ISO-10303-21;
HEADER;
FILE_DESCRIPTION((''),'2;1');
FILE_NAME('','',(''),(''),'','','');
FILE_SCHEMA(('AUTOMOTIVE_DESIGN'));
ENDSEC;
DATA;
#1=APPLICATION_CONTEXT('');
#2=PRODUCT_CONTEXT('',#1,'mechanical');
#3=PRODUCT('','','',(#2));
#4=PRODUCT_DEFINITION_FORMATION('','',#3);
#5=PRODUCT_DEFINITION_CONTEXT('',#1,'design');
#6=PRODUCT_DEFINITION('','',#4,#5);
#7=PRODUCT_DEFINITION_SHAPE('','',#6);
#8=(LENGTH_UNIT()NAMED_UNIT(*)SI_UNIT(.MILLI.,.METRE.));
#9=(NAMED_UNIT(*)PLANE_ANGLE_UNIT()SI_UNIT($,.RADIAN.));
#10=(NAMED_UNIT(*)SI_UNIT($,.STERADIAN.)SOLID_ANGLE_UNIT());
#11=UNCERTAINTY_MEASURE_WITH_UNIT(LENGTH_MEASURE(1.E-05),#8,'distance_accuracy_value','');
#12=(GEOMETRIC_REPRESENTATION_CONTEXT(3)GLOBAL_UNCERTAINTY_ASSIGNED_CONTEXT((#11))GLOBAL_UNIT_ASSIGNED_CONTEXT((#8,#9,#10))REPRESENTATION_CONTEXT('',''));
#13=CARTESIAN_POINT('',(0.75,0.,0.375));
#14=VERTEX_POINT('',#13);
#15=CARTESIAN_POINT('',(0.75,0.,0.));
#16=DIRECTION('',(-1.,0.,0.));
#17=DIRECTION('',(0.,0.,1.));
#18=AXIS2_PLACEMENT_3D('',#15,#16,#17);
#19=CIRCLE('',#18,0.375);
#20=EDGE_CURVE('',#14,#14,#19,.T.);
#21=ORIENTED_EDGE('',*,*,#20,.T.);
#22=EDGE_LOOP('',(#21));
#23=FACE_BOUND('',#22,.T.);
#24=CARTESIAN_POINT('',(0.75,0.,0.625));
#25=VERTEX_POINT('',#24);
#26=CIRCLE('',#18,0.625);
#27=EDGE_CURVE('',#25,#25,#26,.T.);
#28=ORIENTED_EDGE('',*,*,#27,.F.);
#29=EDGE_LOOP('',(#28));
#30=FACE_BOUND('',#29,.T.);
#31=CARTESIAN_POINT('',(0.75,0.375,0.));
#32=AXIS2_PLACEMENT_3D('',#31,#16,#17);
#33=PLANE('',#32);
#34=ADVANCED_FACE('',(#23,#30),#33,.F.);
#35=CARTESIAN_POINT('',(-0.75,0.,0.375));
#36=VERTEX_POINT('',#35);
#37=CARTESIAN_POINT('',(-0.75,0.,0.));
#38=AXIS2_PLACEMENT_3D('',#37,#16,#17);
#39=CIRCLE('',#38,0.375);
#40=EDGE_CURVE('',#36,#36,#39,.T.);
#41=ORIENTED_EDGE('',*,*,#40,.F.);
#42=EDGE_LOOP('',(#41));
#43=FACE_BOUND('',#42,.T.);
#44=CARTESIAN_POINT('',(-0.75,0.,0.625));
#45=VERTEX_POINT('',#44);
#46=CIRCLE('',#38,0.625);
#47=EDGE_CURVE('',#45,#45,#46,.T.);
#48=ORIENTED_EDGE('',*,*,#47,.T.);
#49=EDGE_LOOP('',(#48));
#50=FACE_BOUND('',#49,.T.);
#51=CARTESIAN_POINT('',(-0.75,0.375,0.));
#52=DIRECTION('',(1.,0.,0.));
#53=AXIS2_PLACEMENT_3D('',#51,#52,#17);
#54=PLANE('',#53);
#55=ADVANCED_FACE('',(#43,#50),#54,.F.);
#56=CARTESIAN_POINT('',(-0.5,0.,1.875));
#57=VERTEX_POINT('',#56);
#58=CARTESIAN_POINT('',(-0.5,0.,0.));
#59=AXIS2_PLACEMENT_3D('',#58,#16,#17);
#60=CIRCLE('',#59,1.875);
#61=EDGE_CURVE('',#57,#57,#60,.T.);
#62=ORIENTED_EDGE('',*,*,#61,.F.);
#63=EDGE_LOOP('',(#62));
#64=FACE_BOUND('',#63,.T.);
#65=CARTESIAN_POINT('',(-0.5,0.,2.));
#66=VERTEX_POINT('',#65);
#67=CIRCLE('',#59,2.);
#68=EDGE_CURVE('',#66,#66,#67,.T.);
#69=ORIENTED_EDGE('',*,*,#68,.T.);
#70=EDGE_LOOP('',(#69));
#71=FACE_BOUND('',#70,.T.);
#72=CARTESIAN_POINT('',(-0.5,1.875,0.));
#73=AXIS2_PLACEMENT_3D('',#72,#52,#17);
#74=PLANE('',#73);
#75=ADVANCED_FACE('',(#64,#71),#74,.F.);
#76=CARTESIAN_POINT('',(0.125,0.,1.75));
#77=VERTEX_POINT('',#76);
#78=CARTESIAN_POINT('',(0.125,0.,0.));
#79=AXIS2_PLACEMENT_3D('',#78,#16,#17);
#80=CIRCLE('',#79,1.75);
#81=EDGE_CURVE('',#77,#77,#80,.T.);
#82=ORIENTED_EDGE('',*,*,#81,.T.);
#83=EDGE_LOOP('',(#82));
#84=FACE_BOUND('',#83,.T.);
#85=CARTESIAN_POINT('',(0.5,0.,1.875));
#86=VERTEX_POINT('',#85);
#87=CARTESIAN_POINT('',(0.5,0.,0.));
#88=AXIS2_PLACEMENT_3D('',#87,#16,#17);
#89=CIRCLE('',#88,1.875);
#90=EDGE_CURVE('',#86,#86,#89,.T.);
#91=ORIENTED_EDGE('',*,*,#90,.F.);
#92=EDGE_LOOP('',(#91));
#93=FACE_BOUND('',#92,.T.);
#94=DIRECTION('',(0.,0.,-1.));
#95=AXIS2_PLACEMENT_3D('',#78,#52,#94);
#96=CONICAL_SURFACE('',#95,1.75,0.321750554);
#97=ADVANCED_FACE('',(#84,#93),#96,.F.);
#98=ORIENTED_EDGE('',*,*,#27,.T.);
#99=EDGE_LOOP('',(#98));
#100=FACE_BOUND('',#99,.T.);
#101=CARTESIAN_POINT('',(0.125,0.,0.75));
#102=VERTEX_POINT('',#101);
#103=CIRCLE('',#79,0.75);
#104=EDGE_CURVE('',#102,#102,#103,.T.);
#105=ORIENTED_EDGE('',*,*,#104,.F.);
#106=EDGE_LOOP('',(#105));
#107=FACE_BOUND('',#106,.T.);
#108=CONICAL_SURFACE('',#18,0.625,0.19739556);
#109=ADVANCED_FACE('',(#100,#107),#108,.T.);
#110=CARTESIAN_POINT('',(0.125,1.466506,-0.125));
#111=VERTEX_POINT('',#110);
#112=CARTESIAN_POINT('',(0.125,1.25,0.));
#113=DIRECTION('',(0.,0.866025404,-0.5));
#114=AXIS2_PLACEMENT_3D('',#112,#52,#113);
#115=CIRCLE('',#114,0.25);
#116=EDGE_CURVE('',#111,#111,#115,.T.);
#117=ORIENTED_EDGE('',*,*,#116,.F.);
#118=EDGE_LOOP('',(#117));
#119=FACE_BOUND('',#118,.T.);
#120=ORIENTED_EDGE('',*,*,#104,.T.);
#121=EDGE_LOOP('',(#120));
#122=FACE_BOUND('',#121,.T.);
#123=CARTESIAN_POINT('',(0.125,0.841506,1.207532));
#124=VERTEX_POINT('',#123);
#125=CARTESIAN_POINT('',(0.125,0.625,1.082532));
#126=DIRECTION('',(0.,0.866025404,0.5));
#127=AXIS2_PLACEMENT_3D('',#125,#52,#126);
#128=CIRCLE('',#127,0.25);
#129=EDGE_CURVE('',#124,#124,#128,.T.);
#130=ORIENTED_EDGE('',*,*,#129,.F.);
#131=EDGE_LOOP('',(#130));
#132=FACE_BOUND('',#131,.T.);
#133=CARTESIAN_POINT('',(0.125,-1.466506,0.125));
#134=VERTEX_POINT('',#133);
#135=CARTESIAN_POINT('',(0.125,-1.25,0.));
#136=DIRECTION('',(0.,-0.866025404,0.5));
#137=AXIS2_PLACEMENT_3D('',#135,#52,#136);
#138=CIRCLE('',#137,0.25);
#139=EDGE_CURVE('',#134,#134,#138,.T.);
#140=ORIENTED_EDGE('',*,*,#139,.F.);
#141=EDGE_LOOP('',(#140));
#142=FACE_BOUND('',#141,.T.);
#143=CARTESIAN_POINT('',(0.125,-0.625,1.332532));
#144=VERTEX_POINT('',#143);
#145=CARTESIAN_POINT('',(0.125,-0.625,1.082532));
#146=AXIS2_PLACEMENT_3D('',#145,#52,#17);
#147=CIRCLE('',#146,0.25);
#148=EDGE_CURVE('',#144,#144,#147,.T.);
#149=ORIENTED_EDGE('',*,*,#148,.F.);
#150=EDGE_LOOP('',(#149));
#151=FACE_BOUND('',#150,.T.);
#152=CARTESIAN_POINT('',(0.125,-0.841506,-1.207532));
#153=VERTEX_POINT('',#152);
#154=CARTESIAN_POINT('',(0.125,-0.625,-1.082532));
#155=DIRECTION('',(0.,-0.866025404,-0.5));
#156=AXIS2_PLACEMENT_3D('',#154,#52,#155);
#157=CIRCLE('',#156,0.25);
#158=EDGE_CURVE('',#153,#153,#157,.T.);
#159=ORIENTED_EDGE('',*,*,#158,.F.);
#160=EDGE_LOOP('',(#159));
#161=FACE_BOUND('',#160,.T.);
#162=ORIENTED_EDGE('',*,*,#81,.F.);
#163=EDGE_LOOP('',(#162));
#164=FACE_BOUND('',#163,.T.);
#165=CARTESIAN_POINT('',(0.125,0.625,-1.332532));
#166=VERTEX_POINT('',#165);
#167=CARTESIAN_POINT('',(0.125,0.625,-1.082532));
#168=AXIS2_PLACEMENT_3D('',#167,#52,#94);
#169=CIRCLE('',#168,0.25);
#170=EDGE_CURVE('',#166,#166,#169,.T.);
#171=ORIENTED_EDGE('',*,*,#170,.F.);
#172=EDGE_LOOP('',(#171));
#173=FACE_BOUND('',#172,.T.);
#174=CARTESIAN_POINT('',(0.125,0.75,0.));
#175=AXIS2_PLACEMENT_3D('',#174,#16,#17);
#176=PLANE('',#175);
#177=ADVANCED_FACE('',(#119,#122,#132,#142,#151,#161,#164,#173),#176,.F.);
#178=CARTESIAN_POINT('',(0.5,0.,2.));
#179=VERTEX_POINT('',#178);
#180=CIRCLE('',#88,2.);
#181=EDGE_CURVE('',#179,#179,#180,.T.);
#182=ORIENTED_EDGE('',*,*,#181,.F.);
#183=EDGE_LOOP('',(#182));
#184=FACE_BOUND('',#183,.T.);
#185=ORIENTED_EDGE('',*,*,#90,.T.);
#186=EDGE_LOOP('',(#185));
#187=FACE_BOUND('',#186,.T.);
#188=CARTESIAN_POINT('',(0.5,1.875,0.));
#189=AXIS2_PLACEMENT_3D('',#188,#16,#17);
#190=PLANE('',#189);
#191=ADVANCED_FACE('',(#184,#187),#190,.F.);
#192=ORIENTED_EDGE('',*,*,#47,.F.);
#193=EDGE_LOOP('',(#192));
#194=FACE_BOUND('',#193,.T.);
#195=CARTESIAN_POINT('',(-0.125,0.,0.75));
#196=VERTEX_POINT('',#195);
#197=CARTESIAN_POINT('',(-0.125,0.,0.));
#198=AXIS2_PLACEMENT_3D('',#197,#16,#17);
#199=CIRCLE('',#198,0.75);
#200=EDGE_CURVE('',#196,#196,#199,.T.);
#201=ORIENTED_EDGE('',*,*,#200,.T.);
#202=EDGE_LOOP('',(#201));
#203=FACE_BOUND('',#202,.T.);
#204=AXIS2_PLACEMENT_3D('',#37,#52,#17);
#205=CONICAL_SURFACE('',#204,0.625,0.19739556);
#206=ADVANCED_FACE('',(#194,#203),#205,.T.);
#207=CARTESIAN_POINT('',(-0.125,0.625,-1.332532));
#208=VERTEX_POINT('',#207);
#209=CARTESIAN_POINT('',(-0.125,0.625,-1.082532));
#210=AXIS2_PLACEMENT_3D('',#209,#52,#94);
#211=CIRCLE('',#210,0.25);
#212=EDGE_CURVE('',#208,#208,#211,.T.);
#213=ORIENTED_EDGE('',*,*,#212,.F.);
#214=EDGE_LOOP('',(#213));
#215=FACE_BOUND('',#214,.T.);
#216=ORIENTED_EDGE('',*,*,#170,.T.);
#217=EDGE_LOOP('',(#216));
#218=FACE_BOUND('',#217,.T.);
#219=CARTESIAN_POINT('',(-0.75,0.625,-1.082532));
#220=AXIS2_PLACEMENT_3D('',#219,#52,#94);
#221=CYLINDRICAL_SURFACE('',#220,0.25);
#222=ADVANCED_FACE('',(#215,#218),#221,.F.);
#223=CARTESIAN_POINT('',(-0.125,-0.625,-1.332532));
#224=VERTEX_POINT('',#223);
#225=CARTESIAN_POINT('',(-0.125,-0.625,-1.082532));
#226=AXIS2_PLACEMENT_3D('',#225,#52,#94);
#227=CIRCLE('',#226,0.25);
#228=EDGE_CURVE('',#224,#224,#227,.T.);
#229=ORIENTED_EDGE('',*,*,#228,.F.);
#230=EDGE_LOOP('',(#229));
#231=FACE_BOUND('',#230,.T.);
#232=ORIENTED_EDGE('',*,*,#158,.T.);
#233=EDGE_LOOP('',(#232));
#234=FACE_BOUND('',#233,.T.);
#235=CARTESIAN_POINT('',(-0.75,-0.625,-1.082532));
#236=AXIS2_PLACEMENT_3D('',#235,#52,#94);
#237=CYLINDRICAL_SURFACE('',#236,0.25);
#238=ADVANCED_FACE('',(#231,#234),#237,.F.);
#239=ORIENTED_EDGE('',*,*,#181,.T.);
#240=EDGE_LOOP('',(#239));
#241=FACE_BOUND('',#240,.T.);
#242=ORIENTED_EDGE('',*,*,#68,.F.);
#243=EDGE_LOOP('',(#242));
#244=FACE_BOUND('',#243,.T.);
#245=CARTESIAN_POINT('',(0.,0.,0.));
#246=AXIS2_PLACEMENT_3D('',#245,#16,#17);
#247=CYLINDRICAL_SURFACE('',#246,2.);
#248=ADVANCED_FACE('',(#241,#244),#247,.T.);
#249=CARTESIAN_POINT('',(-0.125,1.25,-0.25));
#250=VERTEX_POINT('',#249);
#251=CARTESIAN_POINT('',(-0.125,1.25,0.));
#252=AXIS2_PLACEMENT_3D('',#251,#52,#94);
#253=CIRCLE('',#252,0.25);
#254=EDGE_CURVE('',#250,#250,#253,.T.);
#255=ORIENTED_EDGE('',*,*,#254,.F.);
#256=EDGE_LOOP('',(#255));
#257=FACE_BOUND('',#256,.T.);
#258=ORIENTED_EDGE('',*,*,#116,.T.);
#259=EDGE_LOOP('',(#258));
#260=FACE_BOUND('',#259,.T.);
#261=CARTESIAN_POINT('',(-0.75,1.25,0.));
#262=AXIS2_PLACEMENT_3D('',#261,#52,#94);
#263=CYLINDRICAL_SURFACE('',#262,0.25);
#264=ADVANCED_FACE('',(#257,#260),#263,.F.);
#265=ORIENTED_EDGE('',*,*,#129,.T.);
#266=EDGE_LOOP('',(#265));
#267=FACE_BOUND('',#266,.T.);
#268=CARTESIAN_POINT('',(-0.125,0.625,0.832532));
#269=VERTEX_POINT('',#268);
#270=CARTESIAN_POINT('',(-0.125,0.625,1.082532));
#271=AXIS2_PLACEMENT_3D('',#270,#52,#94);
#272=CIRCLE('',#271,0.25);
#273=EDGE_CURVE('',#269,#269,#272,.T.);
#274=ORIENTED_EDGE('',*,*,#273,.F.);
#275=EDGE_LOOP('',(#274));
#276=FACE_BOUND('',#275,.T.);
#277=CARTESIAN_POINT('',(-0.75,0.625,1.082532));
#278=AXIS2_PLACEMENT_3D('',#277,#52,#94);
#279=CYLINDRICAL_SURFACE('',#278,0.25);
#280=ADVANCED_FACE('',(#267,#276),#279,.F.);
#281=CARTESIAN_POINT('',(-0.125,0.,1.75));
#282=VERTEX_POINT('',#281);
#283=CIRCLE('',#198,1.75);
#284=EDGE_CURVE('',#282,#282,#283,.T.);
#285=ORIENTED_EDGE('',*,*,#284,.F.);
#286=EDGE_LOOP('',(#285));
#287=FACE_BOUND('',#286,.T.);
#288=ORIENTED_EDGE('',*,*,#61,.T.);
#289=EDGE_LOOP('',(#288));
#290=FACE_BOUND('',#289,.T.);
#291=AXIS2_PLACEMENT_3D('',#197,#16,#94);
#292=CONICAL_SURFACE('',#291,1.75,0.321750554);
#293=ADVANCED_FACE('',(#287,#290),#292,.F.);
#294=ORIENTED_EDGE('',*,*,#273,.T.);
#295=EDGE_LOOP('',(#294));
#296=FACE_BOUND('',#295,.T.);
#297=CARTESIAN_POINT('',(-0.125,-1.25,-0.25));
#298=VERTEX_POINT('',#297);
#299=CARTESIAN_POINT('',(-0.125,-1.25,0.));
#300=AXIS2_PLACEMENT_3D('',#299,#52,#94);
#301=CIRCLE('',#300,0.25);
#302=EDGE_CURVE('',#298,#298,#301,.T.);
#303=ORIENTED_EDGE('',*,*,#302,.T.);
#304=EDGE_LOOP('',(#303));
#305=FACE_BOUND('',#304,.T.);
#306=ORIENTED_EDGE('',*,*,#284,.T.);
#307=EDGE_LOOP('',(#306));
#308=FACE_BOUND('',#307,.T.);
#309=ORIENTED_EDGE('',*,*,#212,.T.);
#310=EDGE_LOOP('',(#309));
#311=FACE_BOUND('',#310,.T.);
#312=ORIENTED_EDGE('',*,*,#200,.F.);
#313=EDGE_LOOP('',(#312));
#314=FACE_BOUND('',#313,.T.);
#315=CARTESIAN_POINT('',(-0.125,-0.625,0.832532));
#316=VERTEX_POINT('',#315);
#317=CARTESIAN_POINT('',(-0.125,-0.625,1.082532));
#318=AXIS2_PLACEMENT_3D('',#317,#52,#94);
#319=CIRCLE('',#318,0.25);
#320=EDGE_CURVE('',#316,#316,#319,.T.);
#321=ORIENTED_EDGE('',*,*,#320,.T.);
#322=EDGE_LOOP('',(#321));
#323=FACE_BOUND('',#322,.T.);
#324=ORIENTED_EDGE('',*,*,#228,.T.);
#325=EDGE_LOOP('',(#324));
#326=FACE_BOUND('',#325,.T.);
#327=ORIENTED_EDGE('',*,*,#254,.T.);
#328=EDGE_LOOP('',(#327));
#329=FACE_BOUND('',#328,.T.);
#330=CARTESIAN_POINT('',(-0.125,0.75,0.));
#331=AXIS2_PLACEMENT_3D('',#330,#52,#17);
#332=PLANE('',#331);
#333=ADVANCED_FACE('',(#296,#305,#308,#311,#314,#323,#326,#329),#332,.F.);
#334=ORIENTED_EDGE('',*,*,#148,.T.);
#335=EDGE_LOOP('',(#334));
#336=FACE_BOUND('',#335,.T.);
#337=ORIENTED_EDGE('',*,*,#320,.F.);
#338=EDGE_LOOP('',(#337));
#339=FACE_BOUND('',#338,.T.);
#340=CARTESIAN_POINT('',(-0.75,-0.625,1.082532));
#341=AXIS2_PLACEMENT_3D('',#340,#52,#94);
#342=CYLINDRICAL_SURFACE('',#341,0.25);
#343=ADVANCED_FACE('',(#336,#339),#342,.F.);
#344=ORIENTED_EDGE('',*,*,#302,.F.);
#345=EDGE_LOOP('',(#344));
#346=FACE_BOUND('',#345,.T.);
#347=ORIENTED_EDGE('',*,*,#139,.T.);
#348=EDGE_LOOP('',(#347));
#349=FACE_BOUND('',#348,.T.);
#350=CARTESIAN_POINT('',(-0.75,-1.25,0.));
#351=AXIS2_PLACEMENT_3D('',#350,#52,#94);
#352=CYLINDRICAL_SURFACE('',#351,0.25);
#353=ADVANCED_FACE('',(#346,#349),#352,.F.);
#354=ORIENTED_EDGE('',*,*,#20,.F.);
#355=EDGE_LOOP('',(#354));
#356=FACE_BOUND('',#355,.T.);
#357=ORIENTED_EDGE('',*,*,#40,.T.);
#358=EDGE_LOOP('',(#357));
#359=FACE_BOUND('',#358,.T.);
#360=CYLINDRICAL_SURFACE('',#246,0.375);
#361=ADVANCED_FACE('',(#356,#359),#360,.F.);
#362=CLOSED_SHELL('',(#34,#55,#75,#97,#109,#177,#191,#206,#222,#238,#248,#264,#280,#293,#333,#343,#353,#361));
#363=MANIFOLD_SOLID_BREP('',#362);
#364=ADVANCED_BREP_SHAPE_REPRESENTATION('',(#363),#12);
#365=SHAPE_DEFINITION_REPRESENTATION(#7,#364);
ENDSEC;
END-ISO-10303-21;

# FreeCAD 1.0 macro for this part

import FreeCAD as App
import Part
import Sketcher
from FreeCAD import Vector


def add_polygon(sketch, points):
    """Adds a closed chain of lines whose ends are joined by coincident constraints."""
    first, n = sketch.GeometryCount, len(points)
    for a, b in zip(points, points[1:] + points[:1]):
        sketch.addGeometry(Part.LineSegment(App.Vector(*a, 0), App.Vector(*b, 0)), False)
    for i in range(n):
        sketch.addConstraint(Sketcher.Constraint("Coincident", first + i, 2, first + (i + 1) % n, 1))

doc = App.newDocument("Part")
body = doc.addObject("PartDesign::Body", "Body")

sketch1 = doc.addObject("Sketcher::SketchObject", "Sketch")
body.addObject(sketch1)
sketch1.AttachmentSupport = (doc.XY_Plane, [""])
sketch1.MapMode = "FlatFace"
add_polygon(sketch1, [(0, 0.38), (0.75, 0.38), (0.75, 0.62), (0.12, 0.75), (0.12, 1.75), (0.5, 1.88), (0.5, 2), (0, 2)])
sketch1.addConstraint(Sketcher.Constraint("Horizontal", 0))
sketch1.addConstraint(Sketcher.Constraint("Vertical", 1))
sketch1.addConstraint(Sketcher.Constraint("Vertical", 3))
sketch1.addConstraint(Sketcher.Constraint("Vertical", 5))
sketch1.addConstraint(Sketcher.Constraint("Horizontal", 6))
sketch1.addConstraint(Sketcher.Constraint("Vertical", 7))
sketch1.addConstraint(Sketcher.Constraint("PointOnObject", 6, 2, -2))
sketch1.addConstraint(Sketcher.Constraint("DistanceY", 3, 1, 3, 2, 1.0))
sketch1.addConstraint(Sketcher.Constraint("DistanceX", 6, 2, 6, 1, 0.5))
sketch1.addConstraint(Sketcher.Constraint("DistanceY", -1, 1, 5, 2, 2.0))
sketch1.addConstraint(Sketcher.Constraint("DistanceX", 0, 1, 0, 2, 0.75))
sketch1.addConstraint(Sketcher.Constraint("DistanceY", 1, 1, 1, 2, 0.25))
sketch1.addConstraint(Sketcher.Constraint("DistanceY", 0, 2, 4, 2, 1.5))
sketch1.addConstraint(Sketcher.Constraint("DistanceY", 5, 1, 5, 2, 0.125))
sketch1.addConstraint(Sketcher.Constraint("DistanceY", -1, 1, 2, 2, 0.75))
sketch1.addConstraint(Sketcher.Constraint("DistanceX", -1, 1, 2, 2, 0.125))
revolution = doc.addObject("PartDesign::Revolution", "Revolution")
body.addObject(revolution)
revolution.Profile = sketch1
revolution.ReferenceAxis = (sketch1, ["H_Axis"])
revolution.Angle = 360
doc.recompute()

mirrored = doc.addObject("PartDesign::Mirrored", "Mirrored")
body.addObject(mirrored)
mirrored.Originals = [revolution]
mirrored.MirrorPlane = (doc.YZ_Plane, [""])
body.Tip = mirrored

sketch2 = doc.addObject("Sketcher::SketchObject", "Sketch001")
body.addObject(sketch2)
sketch2.AttachmentSupport = (doc.YZ_Plane, [""])
sketch2.MapMode = "FlatFace"
sketch2.AttachmentOffset = App.Placement(Vector(0, 0, 0.125), App.Rotation())
sketch2.addGeometry(Part.Circle(Vector(0.62, -1.08, 0), Vector(0, 0, 1), 0.25), False)
sketch2.addConstraint(Sketcher.Constraint("Diameter", 0, 0.5))
sketch2.addConstraint(Sketcher.Constraint("DistanceX", -1, 1, 0, 3, 0.625))
sketch2.addConstraint(Sketcher.Constraint("DistanceY", 0, 3, -1, 1, 1.082532))
pocket1 = doc.addObject("PartDesign::Pocket", "Pocket")
body.addObject(pocket1)
pocket1.Profile = sketch2
pocket1.Type = "ThroughAll"
doc.recompute()

polarpattern = doc.addObject("PartDesign::PolarPattern", "PolarPattern")
body.addObject(polarpattern)
polarpattern.Originals = [pocket1]
polarpattern.Axis = (doc.X_Axis, [""])
polarpattern.Angle = 360
polarpattern.Occurrences = 6
body.Tip = polarpattern

doc.recompute()
